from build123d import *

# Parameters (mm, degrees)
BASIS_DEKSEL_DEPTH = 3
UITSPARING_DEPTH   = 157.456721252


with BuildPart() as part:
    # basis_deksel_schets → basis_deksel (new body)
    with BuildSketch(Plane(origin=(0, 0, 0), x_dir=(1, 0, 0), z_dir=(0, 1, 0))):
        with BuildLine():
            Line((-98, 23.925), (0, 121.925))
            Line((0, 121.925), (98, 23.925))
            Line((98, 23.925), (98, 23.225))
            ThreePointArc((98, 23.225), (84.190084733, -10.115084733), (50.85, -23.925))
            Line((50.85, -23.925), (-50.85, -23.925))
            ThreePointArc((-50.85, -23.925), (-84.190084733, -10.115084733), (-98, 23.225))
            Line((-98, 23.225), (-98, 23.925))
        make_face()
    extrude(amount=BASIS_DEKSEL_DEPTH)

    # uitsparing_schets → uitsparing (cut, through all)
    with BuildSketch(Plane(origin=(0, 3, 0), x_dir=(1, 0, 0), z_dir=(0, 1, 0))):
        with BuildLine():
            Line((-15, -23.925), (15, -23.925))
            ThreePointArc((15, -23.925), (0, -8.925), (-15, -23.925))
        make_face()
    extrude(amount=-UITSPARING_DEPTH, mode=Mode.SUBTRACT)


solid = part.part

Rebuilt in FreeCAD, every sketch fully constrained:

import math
import FreeCAD as App
import Part
import Sketcher

V = App.Vector
Q = App.Units.Quantity

doc = App.newDocument("Part")
body = doc.addObject("PartDesign::Body", "Body")

# Sketch on XZ plane
sketch1 = body.newObject("Sketcher::SketchObject", "Sketch")
sketch1.AttachmentSupport = (doc.getObject("XZ_Plane"), [""])
sketch1.MapMode = "FlatFace"
sketch1.addGeometry([
    Part.LineSegment(V(0, -121.9, 0), V(-98, -23.9, 0)),  # 0
    Part.LineSegment(V(-98, -23.9, 0), V(-98, -23.2, 0)),  # 1
    Part.ArcOfCircle(Part.Circle(V(-50.9, -23.2, 0), V(0, 0, 1), 47.1), math.radians(90), math.radians(180)),  # 2
    Part.LineSegment(V(-50.9, 23.9, 0), V(50.9, 23.9, 0)),  # 3
    Part.ArcOfCircle(Part.Circle(V(50.9, -23.2, 0), V(0, 0, 1), 47.1), math.radians(0), math.radians(90)),  # 4
    Part.LineSegment(V(98, -23.2, 0), V(98, -23.9, 0)),  # 5
    Part.LineSegment(V(98, -23.9, 0), V(0, -121.9, 0)),  # 6
], False)
sketch1.addConstraint([
    Sketcher.Constraint("Coincident", 0, 2, 1, 1),
    Sketcher.Constraint("Tangent", 1, 2, 2, 2),
    Sketcher.Constraint("Tangent", 2, 1, 3, 1),
    Sketcher.Constraint("Tangent", 3, 2, 4, 2),
    Sketcher.Constraint("Tangent", 4, 1, 5, 1),
    Sketcher.Constraint("Coincident", 5, 2, 6, 1),
    Sketcher.Constraint("Coincident", 6, 2, 0, 1),
    Sketcher.Constraint("Vertical", 1),
    Sketcher.Constraint("Horizontal", 3),
    Sketcher.Constraint("Vertical", 5),
    Sketcher.Constraint("Equal", 2, 4),
    Sketcher.Constraint("Symmetric", 0, 2, 5, 2, -2),
    Sketcher.Constraint("PointOnObject", 6, 2, -2),
    Sketcher.Constraint("Perpendicular", 0, 6),
    Sketcher.Constraint("Radius", 2, Q("47.15 mm")),
    Sketcher.Constraint("DistanceX", 3, 1, 3, 2, Q("101.7 mm")),
    Sketcher.Constraint("DistanceY", 1, 1, 1, 2, Q("0.7 mm")),
    Sketcher.Constraint("DistanceY", 2, 3, -1, 1, Q("23.225 mm")),
])
pad1 = body.newObject("PartDesign::Pad", "Pad")
pad1.Profile = sketch1
pad1.Length = 3
pad1.Reversed = True

# Sketch on XZ plane
sketch2 = body.newObject("Sketcher::SketchObject", "Sketch001")
sketch2.AttachmentSupport = (doc.getObject("XZ_Plane"), [""])
sketch2.MapMode = "FlatFace"
sketch2.AttachmentOffset = App.Placement(V(0, 0, -3), App.Rotation())
sketch2.addGeometry([
    Part.LineSegment(V(-15, 24, 0), V(15, 24, 0)),
    Part.ArcOfCircle(Part.Circle(V(0, 24, 0), V(0, 0, 1), 15), math.radians(180), math.radians(360)),
], False)
sketch2.addConstraint([
    Sketcher.Constraint("Coincident", 0, 1, 1, 1),
    Sketcher.Constraint("Coincident", 1, 2, 0, 2),
    Sketcher.Constraint("Horizontal", 0),
    Sketcher.Constraint("PointOnObject", 1, 3, -2),
    Sketcher.Constraint("Horizontal", 1, 3, 0, 1),
    Sketcher.Constraint("Radius", 1, Q("15 mm")),
    Sketcher.Constraint("DistanceY", -1, 1, 1, 3, Q("23.925 mm")),
])
pocket1 = body.newObject("PartDesign::Pocket", "Pocket")
pocket1.Profile = sketch2
pocket1.Type = "ThroughAll"
pocket1.Reversed = True

doc.recompute()
